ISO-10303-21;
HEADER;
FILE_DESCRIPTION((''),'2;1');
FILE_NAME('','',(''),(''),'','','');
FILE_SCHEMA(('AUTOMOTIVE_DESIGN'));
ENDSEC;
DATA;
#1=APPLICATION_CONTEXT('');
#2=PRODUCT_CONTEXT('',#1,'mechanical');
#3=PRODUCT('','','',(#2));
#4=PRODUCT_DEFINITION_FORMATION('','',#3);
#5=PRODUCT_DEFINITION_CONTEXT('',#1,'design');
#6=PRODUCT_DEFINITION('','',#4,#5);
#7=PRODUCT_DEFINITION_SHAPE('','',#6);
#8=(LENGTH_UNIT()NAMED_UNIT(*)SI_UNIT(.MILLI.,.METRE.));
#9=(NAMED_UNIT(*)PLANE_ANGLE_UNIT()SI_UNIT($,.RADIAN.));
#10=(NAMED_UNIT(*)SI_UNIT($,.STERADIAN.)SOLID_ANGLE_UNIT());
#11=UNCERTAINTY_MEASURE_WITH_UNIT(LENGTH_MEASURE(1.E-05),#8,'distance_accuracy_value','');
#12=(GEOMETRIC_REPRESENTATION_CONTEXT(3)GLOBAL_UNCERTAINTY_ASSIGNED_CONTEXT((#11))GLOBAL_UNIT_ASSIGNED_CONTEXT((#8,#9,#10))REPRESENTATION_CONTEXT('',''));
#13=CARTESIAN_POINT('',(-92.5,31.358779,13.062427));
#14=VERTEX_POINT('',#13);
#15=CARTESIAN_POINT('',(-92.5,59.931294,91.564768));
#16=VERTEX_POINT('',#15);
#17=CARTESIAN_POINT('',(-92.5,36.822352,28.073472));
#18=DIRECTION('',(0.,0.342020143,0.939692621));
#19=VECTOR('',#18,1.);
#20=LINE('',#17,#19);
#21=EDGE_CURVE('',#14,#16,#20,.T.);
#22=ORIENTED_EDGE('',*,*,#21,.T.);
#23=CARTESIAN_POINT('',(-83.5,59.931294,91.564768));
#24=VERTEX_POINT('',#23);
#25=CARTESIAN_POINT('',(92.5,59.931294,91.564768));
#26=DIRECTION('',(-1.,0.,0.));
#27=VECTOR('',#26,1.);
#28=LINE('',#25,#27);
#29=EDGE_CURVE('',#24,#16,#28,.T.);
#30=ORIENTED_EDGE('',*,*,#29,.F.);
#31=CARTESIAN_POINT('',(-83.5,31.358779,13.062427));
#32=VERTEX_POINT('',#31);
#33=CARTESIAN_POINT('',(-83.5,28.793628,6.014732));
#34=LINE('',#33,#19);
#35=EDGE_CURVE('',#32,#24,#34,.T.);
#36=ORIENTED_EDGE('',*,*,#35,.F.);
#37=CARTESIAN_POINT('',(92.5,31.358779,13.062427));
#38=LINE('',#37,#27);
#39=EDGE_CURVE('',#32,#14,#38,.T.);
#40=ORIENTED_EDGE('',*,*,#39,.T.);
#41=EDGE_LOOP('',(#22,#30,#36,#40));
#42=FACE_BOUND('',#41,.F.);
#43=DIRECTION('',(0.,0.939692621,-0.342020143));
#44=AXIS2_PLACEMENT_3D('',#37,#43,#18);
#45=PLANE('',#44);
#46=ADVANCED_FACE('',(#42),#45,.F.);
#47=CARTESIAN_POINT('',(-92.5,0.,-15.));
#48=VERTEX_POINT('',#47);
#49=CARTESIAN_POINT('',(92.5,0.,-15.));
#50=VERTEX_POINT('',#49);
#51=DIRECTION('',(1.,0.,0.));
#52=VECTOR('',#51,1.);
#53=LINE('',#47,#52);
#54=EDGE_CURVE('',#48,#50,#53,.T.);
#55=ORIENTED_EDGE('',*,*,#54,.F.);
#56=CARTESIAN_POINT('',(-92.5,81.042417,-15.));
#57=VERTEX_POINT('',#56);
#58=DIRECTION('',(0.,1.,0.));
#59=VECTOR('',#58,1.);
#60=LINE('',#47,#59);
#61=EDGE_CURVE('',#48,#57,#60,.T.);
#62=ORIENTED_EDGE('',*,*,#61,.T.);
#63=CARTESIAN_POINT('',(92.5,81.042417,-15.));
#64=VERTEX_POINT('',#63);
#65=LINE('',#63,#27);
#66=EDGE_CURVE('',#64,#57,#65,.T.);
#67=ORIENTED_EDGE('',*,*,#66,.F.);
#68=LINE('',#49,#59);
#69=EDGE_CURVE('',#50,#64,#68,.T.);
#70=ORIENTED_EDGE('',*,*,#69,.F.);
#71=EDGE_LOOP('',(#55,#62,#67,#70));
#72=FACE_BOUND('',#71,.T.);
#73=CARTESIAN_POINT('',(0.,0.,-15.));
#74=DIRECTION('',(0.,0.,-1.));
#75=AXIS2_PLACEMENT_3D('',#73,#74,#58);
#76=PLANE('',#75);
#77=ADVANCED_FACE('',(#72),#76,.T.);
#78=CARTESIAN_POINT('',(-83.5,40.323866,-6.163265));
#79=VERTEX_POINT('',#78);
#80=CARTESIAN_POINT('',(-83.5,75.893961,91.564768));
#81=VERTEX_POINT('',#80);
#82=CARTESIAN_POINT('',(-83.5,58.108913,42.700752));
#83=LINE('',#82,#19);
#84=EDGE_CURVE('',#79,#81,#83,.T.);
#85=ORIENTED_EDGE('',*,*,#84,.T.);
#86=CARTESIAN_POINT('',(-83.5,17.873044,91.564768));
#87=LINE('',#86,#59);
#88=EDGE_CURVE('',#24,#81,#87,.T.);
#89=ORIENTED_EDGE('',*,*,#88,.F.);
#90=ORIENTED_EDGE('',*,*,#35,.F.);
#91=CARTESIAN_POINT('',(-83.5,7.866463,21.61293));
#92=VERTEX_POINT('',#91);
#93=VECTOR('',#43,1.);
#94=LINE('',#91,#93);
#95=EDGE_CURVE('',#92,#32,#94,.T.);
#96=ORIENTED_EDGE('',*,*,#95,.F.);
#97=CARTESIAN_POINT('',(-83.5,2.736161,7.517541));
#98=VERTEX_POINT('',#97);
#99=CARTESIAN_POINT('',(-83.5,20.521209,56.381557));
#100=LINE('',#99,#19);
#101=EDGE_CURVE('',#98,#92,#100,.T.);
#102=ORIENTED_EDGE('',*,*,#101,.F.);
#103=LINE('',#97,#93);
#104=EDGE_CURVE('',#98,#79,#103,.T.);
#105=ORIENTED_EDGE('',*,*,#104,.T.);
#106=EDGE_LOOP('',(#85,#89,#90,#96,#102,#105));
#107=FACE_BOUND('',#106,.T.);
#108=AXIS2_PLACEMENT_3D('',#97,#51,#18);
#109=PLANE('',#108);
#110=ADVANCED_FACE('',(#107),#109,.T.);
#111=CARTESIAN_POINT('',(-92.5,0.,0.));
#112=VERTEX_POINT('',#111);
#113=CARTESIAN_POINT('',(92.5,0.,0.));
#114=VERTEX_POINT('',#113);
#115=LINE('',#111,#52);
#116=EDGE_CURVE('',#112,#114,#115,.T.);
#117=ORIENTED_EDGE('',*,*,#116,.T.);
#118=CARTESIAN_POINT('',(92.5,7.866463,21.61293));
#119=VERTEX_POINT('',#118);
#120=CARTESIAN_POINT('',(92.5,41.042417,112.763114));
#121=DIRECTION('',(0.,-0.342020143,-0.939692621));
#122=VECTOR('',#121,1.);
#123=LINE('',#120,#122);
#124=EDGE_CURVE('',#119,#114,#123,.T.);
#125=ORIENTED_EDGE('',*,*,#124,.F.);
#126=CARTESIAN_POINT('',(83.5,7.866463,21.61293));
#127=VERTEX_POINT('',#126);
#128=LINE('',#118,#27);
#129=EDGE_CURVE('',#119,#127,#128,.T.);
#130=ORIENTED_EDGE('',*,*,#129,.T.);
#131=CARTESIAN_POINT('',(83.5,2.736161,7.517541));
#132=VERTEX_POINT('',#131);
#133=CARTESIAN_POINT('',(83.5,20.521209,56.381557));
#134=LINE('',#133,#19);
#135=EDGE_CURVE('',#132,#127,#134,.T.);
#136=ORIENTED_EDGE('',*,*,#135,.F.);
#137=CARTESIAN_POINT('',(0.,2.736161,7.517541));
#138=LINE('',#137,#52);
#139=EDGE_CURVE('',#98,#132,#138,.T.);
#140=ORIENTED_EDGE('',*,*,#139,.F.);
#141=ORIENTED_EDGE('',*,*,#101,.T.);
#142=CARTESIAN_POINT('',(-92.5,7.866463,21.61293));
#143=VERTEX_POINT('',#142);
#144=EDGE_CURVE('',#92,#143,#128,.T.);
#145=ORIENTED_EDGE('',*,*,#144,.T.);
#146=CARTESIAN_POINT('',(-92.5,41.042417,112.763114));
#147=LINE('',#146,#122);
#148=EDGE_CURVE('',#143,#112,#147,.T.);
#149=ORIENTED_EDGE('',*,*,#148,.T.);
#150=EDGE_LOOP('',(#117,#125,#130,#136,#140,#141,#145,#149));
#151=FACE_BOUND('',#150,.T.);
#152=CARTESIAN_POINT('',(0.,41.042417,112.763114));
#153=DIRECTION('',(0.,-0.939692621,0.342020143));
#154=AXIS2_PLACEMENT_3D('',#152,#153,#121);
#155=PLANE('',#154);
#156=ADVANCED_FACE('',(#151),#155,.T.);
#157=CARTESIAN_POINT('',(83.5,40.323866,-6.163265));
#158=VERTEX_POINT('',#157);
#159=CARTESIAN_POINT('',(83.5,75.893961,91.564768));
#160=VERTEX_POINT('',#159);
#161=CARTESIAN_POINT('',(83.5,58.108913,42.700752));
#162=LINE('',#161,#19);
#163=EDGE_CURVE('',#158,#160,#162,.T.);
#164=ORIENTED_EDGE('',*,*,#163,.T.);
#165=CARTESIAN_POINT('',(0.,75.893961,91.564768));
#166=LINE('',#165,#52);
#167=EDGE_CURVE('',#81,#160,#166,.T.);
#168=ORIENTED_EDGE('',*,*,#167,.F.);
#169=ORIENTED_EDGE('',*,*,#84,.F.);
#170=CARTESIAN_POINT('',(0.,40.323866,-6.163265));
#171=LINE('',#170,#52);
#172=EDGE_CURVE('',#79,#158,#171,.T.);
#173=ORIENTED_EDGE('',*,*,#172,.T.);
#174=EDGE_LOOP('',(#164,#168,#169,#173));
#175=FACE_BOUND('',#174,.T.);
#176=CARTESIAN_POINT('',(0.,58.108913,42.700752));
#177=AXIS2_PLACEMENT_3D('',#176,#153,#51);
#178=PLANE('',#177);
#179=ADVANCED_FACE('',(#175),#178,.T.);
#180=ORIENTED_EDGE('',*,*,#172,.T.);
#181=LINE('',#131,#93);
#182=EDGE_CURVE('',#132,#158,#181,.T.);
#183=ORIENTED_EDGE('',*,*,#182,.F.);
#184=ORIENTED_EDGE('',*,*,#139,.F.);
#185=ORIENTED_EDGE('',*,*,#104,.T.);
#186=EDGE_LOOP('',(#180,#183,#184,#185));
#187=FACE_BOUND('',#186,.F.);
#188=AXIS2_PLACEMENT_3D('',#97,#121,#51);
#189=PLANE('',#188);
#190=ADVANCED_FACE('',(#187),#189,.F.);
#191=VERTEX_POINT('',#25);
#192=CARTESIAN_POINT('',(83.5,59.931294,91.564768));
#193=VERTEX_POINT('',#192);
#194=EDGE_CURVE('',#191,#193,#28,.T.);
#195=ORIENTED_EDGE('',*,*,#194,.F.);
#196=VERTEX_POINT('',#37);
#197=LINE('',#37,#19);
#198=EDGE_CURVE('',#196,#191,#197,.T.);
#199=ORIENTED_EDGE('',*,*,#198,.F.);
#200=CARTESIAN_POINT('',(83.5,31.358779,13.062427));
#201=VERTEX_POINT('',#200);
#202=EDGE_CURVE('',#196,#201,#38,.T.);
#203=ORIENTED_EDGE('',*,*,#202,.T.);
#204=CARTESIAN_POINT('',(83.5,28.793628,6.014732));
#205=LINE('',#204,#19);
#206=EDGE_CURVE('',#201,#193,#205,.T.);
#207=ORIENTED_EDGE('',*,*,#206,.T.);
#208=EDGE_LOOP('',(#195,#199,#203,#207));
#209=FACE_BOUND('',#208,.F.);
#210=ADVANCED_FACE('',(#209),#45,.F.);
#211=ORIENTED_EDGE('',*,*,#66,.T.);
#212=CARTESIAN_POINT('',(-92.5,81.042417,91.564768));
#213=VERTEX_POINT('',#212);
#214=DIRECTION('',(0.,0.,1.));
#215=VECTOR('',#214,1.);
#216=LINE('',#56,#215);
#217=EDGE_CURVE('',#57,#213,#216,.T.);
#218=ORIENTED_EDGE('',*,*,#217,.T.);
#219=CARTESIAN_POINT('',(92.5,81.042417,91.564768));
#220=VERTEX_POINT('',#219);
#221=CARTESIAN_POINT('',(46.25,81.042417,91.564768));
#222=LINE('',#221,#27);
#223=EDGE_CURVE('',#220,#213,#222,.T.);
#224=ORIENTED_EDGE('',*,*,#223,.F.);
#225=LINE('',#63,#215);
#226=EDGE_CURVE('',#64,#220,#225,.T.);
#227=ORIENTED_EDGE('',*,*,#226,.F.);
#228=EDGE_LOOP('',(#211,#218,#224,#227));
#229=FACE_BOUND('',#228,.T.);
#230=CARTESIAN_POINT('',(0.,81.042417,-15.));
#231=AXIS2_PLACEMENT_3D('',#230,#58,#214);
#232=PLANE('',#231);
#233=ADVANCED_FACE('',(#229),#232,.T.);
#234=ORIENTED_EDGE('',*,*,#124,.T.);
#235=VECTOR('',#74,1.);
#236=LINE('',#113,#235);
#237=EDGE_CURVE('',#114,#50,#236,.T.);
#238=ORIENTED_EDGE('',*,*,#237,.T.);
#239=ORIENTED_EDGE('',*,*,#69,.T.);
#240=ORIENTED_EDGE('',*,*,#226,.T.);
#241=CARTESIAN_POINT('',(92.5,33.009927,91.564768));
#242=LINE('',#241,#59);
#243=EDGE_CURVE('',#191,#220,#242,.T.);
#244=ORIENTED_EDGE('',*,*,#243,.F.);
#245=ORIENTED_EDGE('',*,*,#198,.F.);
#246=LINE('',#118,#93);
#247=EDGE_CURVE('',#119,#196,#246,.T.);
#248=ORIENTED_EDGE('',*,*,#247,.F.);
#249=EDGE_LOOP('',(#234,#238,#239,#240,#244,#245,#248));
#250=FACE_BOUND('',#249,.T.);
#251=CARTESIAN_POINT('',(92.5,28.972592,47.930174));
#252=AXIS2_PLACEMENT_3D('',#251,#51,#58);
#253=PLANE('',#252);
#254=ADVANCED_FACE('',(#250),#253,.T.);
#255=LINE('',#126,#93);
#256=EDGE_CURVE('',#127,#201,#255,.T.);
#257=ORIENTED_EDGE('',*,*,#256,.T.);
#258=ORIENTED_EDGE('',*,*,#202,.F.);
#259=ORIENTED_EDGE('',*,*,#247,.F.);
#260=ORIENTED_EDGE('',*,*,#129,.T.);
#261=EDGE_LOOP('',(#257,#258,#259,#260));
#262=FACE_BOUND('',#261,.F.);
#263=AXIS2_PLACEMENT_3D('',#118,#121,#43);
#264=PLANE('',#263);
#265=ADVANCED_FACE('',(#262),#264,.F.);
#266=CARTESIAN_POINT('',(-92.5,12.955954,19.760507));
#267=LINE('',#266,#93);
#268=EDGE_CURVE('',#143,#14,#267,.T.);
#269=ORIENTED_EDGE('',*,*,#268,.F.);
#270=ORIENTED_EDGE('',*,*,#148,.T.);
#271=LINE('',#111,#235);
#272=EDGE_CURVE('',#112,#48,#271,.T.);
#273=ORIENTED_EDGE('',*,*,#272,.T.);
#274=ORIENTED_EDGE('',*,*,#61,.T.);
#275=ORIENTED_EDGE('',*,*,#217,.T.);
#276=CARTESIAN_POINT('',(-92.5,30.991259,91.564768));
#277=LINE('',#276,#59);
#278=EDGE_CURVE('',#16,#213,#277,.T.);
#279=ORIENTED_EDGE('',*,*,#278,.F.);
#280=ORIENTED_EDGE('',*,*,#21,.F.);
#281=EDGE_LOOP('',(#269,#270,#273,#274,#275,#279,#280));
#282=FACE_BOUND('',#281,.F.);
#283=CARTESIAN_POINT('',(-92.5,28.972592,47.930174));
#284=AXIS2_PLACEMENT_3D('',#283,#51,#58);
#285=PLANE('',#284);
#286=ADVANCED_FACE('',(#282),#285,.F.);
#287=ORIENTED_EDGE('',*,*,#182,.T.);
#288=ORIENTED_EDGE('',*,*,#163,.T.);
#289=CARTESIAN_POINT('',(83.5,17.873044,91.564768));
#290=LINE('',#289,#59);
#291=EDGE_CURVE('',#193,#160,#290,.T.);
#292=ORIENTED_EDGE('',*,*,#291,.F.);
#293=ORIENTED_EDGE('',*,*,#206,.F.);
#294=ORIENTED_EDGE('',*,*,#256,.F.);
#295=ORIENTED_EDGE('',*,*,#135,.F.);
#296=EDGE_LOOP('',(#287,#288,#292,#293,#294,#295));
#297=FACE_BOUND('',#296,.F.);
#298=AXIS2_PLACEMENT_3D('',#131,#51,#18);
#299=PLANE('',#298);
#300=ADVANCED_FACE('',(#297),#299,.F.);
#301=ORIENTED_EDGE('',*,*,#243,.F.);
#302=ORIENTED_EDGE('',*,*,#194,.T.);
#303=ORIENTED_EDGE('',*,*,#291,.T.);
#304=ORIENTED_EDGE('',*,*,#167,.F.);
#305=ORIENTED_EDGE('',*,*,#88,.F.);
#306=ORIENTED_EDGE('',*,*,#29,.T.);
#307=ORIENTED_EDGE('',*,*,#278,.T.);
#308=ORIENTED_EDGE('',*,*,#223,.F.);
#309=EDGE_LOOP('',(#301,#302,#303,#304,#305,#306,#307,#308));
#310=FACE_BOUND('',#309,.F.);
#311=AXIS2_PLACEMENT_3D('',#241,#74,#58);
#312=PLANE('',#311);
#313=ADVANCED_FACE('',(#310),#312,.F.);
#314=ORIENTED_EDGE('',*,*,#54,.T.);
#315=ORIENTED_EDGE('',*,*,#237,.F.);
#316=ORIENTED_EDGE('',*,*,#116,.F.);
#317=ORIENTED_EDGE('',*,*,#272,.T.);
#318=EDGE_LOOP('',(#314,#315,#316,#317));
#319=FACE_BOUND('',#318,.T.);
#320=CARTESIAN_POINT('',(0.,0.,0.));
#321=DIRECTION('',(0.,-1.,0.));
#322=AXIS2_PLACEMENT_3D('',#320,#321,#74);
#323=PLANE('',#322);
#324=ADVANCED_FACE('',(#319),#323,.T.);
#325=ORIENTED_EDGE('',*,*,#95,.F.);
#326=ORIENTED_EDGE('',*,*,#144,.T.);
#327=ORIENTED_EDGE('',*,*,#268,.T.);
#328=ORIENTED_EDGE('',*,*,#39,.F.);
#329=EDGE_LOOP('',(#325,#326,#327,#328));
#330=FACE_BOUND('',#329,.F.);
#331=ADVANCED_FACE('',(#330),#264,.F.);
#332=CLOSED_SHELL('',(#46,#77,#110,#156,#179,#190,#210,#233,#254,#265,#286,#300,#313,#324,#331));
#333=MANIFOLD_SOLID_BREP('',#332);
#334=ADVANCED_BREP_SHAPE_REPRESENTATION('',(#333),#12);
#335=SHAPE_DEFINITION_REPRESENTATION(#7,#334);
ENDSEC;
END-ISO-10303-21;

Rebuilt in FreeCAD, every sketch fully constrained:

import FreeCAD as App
import Part
import Sketcher
from FreeCAD import Vector
Q = App.Units.Quantity


def add_polygon(sketch, points):
    """Adds a closed chain of lines whose ends are joined by coincident constraints."""
    first, n = sketch.GeometryCount, len(points)
    for a, b in zip(points, points[1:] + points[:1]):
        sketch.addGeometry(Part.LineSegment(App.Vector(*a, 0), App.Vector(*b, 0)), False)
    for i in range(n):
        sketch.addConstraint(Sketcher.Constraint("Coincident", first + i, 2, first + (i + 1) % n, 1))

doc = App.newDocument("Part")
body = doc.addObject("PartDesign::Body", "Body")

sketch1 = body.newObject("Sketcher::SketchObject", "Sketch")
sketch1.AttachmentSupport = (doc.getObject("YZ_Plane"), [""])
sketch1.MapMode = "FlatFace"
add_polygon(sketch1, [(41, 113), (0, 0), (0, -15), (81, -15), (81, 113)])
sketch1.addConstraint(Sketcher.Constraint("Vertical", 1))
sketch1.addConstraint(Sketcher.Constraint("Horizontal", 2))
sketch1.addConstraint(Sketcher.Constraint("Vertical", 3))
sketch1.addConstraint(Sketcher.Constraint("Horizontal", 4))
sketch1.addConstraint(Sketcher.Constraint("Coincident", 0, 2, -1, 1))
sketch1.addConstraint(Sketcher.Constraint("DistanceX", 4, 2, 4, 1, 40.0))
sketch1.addConstraint(Sketcher.Constraint("DistanceY", 1, 2, 1, 1, 15.0))
sketch1.addConstraint(Sketcher.Constraint("Angle", 0, Q("-110 deg")))
sketch1.addConstraint(Sketcher.Constraint("Distance", 0, 120.0))
pad1 = body.newObject("PartDesign::Pad", "Pad")
pad1.Profile = sketch1
pad1.Length = 185
pad1.Midplane = True

sketch2 = body.newObject("Sketcher::SketchObject", "Sketch001")
sketch2.Placement = App.Placement(Vector(0, 0, 0), App.Rotation(Vector(1, 0, 0), Vector(0, 0.342020143, 0.939692621), Vector(0, -0.939692621, 0.342020143), "ZXY"))
add_polygon(sketch2, [(-84, 112), (-84, 8), (84, 8), (84, 112)])
sketch2.addConstraint(Sketcher.Constraint("Vertical", 0))
sketch2.addConstraint(Sketcher.Constraint("Horizontal", 1))
sketch2.addConstraint(Sketcher.Constraint("Vertical", 2))
sketch2.addConstraint(Sketcher.Constraint("Horizontal", 3))
sketch2.addConstraint(Sketcher.Constraint("DistanceX", 1, 1, 1, 2, 167.0))
sketch2.addConstraint(Sketcher.Constraint("DistanceY", 0, 2, 0, 1, 104.0))
sketch2.addConstraint(Sketcher.Constraint("DistanceY", -1, 1, 0, 2, 8.0))
sketch2.addConstraint(Sketcher.Constraint("DistanceX", 0, 2, -1, 1, 83.5))
pocket1 = body.newObject("PartDesign::Pocket", "Pocket")
pocket1.Profile = sketch2
pocket1.Length = 40

sketch3 = body.newObject("Sketcher::SketchObject", "Sketch002")
sketch3.AttachmentSupport = (doc.getObject("YZ_Plane"), [""])
sketch3.MapMode = "FlatFace"
sketch3.AttachmentOffset = App.Placement(Vector(0, 0, 92.5), App.Rotation())
add_polygon(sketch3, [(100, 92), (100, 113), (33, 113), (33, 92)])
sketch3.addConstraint(Sketcher.Constraint("Vertical", 0))
sketch3.addConstraint(Sketcher.Constraint("Horizontal", 1))
sketch3.addConstraint(Sketcher.Constraint("Vertical", 2))
sketch3.addConstraint(Sketcher.Constraint("Horizontal", 3))
sketch3.addConstraint(Sketcher.Constraint("DistanceX", 1, 2, 1, 1, 67.14))
sketch3.addConstraint(Sketcher.Constraint("DistanceY", 0, 1, 0, 2, 21.198347))
sketch3.addConstraint(Sketcher.Constraint("DistanceX", -1, 1, 0, 2, 100.149927))
sketch3.addConstraint(Sketcher.Constraint("DistanceY", -1, 1, 0, 2, 112.763114))
pocket2 = body.newObject("PartDesign::Pocket", "Pocket001")
pocket2.Profile = sketch3
pocket2.Length = 200

sketch4 = body.newObject("Sketcher::SketchObject", "Sketch003")
sketch4.AttachmentSupport = (doc.getObject("YZ_Plane"), [""])
sketch4.MapMode = "FlatFace"
sketch4.AttachmentOffset = App.Placement(Vector(0, 0, 92.5), App.Rotation())
add_polygon(sketch4, [(33, 92), (8, 22), (31, 13), (60, 92)])
sketch4.addConstraint(Sketcher.Constraint("Horizontal", 3))
sketch4.addConstraint(Sketcher.Constraint("Perpendicular", 0, 1))
sketch4.addConstraint(Sketcher.Constraint("Perpendicular", 1, 2))
sketch4.addConstraint(Sketcher.Constraint("Angle", 0, Q("-110 deg")))
sketch4.addConstraint(Sketcher.Constraint("Distance", 1, 25.0))
sketch4.addConstraint(Sketcher.Constraint("Distance", 0, 74.441191))
sketch4.addConstraint(Sketcher.Constraint("DistanceY", -1, 1, 0, 2, 21.61293))
sketch4.addConstraint(Sketcher.Constraint("DistanceX", -1, 1, 1, 2, 31.358779))
pocket3 = body.newObject("PartDesign::Pocket", "Pocket002")
pocket3.Profile = sketch4
pocket3.Length = 200

doc.recompute()
